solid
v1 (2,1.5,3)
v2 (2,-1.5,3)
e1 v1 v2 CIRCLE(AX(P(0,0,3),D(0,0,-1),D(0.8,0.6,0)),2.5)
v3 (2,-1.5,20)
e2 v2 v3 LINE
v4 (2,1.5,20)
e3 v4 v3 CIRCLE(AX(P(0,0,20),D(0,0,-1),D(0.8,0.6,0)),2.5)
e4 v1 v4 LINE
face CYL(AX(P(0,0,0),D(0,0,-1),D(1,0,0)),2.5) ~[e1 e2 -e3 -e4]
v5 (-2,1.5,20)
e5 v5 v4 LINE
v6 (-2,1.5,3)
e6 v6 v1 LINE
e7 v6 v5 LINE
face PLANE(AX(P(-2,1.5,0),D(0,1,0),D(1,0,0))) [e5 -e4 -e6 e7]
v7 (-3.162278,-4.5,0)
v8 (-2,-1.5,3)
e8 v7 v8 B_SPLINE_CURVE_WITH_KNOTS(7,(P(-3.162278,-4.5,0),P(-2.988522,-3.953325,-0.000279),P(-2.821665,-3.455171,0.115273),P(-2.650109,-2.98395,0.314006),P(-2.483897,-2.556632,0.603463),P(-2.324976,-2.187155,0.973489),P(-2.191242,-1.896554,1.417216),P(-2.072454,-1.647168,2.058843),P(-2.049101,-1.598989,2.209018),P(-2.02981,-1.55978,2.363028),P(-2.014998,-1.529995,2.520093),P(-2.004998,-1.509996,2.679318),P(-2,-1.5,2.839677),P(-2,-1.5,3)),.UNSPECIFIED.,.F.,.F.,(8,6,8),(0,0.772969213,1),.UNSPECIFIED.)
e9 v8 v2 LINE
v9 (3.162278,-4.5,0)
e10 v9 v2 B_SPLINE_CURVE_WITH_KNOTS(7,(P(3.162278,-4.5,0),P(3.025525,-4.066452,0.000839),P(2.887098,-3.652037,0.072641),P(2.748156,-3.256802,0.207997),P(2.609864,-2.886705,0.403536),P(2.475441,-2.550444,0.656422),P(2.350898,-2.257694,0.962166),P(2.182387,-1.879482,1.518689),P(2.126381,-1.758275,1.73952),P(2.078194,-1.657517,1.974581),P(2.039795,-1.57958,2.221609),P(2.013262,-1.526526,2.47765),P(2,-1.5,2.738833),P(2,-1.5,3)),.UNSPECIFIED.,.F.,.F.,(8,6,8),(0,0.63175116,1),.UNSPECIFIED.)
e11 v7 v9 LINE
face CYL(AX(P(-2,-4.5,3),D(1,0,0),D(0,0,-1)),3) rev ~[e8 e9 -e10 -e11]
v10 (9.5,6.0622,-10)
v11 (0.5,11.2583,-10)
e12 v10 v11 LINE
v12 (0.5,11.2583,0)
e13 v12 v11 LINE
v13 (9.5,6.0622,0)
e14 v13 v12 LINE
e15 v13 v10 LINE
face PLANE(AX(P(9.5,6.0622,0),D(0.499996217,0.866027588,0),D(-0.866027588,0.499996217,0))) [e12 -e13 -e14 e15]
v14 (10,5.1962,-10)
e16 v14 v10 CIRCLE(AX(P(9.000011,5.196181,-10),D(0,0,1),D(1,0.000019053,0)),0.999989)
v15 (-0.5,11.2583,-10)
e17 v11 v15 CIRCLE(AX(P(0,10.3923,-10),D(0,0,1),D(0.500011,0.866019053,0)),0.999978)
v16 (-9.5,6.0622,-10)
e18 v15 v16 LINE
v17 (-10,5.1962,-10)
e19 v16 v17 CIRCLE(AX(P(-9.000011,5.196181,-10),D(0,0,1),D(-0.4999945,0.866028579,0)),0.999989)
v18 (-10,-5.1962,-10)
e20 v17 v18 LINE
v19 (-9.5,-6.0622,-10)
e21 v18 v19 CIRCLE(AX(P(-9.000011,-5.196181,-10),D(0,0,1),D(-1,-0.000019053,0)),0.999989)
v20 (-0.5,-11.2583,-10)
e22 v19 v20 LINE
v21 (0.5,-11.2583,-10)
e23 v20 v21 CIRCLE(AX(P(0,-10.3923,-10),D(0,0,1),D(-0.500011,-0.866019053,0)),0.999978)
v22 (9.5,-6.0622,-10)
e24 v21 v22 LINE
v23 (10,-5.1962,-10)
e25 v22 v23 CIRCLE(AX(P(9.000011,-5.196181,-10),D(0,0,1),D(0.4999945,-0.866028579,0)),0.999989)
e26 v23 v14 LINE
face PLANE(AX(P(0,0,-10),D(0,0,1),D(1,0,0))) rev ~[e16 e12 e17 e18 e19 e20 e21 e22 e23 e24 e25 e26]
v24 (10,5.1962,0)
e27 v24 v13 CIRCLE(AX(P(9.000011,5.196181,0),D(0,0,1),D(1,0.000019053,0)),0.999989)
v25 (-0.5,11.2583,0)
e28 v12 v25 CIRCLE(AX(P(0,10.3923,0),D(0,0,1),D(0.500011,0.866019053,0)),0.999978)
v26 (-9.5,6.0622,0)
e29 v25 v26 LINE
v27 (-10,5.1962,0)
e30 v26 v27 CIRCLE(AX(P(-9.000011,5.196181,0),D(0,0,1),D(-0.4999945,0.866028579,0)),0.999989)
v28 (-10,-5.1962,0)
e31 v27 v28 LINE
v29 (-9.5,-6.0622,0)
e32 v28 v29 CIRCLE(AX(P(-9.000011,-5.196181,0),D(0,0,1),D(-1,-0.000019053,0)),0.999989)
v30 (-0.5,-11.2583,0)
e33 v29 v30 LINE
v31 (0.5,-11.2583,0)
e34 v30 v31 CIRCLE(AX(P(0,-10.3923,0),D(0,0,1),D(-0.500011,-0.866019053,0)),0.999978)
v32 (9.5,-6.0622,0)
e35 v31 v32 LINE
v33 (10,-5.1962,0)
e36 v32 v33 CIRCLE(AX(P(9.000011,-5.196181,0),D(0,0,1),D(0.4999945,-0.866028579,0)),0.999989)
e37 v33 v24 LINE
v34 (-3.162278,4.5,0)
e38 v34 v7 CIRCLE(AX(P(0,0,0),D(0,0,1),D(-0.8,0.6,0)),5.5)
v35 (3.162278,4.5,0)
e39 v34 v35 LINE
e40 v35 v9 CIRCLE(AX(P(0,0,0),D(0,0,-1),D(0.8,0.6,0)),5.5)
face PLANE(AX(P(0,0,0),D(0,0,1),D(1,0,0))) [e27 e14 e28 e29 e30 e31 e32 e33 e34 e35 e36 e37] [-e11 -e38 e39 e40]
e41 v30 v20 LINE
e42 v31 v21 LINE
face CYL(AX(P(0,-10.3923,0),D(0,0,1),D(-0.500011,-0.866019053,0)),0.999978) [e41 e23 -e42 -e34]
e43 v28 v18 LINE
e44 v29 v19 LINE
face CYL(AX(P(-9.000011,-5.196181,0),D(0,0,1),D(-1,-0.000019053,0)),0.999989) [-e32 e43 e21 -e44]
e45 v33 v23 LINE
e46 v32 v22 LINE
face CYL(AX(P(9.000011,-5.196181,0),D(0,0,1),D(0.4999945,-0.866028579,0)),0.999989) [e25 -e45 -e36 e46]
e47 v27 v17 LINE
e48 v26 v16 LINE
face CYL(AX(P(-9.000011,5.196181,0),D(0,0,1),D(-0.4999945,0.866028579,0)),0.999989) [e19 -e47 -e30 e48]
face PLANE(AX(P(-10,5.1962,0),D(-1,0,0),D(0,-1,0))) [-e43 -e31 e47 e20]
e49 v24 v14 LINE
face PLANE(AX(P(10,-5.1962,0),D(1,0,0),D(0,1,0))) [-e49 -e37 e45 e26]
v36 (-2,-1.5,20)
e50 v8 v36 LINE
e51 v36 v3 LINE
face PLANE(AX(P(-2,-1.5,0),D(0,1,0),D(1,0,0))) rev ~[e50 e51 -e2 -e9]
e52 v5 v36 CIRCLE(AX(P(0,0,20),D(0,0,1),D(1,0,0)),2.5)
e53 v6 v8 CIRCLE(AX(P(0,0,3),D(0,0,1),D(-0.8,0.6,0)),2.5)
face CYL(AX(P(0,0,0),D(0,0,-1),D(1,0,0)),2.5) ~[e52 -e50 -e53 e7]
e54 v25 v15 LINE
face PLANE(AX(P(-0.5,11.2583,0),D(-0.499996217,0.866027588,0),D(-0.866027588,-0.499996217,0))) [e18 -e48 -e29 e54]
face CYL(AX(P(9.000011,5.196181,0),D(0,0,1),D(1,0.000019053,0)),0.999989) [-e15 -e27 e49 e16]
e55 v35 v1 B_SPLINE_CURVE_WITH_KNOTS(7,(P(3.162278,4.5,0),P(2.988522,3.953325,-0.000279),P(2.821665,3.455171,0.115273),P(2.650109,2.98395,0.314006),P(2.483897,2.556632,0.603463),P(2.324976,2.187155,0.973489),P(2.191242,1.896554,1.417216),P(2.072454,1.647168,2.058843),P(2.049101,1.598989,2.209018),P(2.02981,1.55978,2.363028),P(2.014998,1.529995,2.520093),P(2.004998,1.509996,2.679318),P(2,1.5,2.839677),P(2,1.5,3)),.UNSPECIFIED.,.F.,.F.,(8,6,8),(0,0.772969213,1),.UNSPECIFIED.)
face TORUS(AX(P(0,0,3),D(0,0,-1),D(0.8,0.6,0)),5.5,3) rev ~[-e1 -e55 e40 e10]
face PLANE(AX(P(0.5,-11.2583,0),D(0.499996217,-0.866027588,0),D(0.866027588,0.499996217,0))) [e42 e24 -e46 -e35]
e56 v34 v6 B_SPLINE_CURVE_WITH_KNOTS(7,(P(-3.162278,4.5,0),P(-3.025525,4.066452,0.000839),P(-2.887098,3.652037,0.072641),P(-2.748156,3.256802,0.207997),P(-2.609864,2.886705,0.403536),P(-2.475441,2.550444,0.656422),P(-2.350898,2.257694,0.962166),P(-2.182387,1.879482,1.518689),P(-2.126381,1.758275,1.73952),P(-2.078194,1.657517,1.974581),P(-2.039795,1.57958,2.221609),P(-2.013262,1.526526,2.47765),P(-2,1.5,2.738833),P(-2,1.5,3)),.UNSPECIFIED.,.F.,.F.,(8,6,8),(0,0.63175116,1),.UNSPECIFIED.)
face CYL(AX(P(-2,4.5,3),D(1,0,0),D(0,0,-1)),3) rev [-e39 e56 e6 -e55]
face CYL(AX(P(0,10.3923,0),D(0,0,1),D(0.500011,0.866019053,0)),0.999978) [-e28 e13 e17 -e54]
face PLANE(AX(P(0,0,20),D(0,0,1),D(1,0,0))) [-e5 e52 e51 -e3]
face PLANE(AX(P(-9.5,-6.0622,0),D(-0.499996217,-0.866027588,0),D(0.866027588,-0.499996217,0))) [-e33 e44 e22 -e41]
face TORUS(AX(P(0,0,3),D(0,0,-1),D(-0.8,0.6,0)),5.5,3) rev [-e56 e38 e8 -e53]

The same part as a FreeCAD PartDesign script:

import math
import FreeCAD as App
import Part
import Sketcher


def edges_at(feature, points):
    """Names of the edges that pass closest to the given points."""
    edges = feature.Shape.Edges
    near = lambda p: min(range(len(edges)), key=lambda i: edges[i].distToShape(Part.Vertex(*p))[0])
    return sorted({f"Edge{near(p) + 1}" for p in points})

doc = App.newDocument("Part")
body = doc.addObject("PartDesign::Body", "Body")

# Sketch on XY plane
sketch1 = body.newObject("Sketcher::SketchObject", "Sketch")
sketch1.AttachmentSupport = (doc.getObject("XY_Plane"), [""])
sketch1.MapMode = "FlatFace"
sketch1.addGeometry([
    Part.ArcOfCircle(Part.Circle(App.Vector(0, 0, 0), App.Vector(0, 0, 1), 2.5), math.radians(-37), math.radians(37)),
    Part.LineSegment(App.Vector(2, 1.5, 0), App.Vector(-2, 1.5, 0)),
    Part.ArcOfCircle(Part.Circle(App.Vector(0, 0, 0), App.Vector(0, 0, 1), 2.5), math.radians(143), math.radians(217)),
    Part.LineSegment(App.Vector(-2, -1.5, 0), App.Vector(2, -1.5, 0)),
], False)
sketch1.addConstraint([
    Sketcher.Constraint("Coincident", 0, 2, 1, 1),
    Sketcher.Constraint("Coincident", 1, 2, 2, 1),
    Sketcher.Constraint("Coincident", 2, 2, 3, 1),
    Sketcher.Constraint("Coincident", 3, 2, 0, 1),
    Sketcher.Constraint("Horizontal", 1),
    Sketcher.Constraint("Horizontal", 3),
    Sketcher.Constraint("Coincident", 0, 3, -1, 1),
    Sketcher.Constraint("Coincident", 2, 3, -1, 1),
    Sketcher.Constraint("Equal", 0, 2),
    Sketcher.Constraint("Vertical", 1, 2, 2, 2),
    Sketcher.Constraint("Radius", 0, 2.5),
    Sketcher.Constraint("DistanceY", 2, 2, 1, 2, 3.0),
])
pad1 = body.newObject("PartDesign::Pad", "Pad")
pad1.Profile = sketch1
pad1.Length = 20

# Sketch on XY plane
sketch2 = body.newObject("Sketcher::SketchObject", "Sketch001")
sketch2.AttachmentSupport = (doc.getObject("XY_Plane"), [""])
sketch2.MapMode = "FlatFace"
sketch2.addGeometry([
    Part.ArcOfCircle(Part.Circle(App.Vector(9, 5.2, 0), App.Vector(0, 0, 1), 1), math.radians(0), math.radians(60)),  # 0
    Part.LineSegment(App.Vector(9.5, 6.1, 0), App.Vector(0.5, 11.3, 0)),  # 1
    Part.ArcOfCircle(Part.Circle(App.Vector(0, 10.4, 0), App.Vector(0, 0, 1), 1), math.radians(60), math.radians(120)),  # 2
    Part.LineSegment(App.Vector(-0.5, 11.3, 0), App.Vector(-9.5, 6.1, 0)),  # 3
    Part.ArcOfCircle(Part.Circle(App.Vector(-9, 5.2, 0), App.Vector(0, 0, 1), 1), math.radians(120), math.radians(180)),  # 4
    Part.LineSegment(App.Vector(-10, 5.2, 0), App.Vector(-10, -5.2, 0)),  # 5
    Part.ArcOfCircle(Part.Circle(App.Vector(-9, -5.2, 0), App.Vector(0, 0, 1), 1), math.radians(180), math.radians(240)),  # 6
    Part.LineSegment(App.Vector(-9.5, -6.1, 0), App.Vector(-0.5, -11.3, 0)),  # 7
    Part.ArcOfCircle(Part.Circle(App.Vector(0, -10.4, 0), App.Vector(0, 0, 1), 1), math.radians(-120), math.radians(-60)),  # 8
    Part.LineSegment(App.Vector(0.5, -11.3, 0), App.Vector(9.5, -6.1, 0)),  # 9
    Part.ArcOfCircle(Part.Circle(App.Vector(9, -5.2, 0), App.Vector(0, 0, 1), 1), math.radians(-60), math.radians(0)),  # 10
    Part.LineSegment(App.Vector(10, -5.2, 0), App.Vector(10, 5.2, 0)),  # 11
], False)
sketch2.addConstraint([
    Sketcher.Constraint("Tangent", 0, 2, 1, 1),
    Sketcher.Constraint("Tangent", 1, 2, 2, 1),
    Sketcher.Constraint("Tangent", 2, 2, 3, 1),
    Sketcher.Constraint("Tangent", 3, 2, 4, 1),
    Sketcher.Constraint("Tangent", 4, 2, 5, 1),
    Sketcher.Constraint("Tangent", 5, 2, 6, 1),
    Sketcher.Constraint("Tangent", 6, 2, 7, 1),
    Sketcher.Constraint("Tangent", 7, 2, 8, 1),
    Sketcher.Constraint("Tangent", 8, 2, 9, 1),
    Sketcher.Constraint("Tangent", 9, 2, 10, 1),
    Sketcher.Constraint("Tangent", 10, 2, 11, 1),
    Sketcher.Constraint("Tangent", 11, 2, 0, 1),
    Sketcher.Constraint("Vertical", 5),
    Sketcher.Constraint("Vertical", 11),
    Sketcher.Constraint("Equal", 0, 2),
    Sketcher.Constraint("Equal", 2, 4),
    Sketcher.Constraint("Equal", 4, 6),
    Sketcher.Constraint("Equal", 6, 8),
    Sketcher.Constraint("Equal", 8, 10),
    Sketcher.Constraint("Symmetric", 0, 3, 6, 3, -1, 1),
    Sketcher.Constraint("Symmetric", 2, 3, 8, 3, -1, 1),
    Sketcher.Constraint("Symmetric", 1, 2, 2, 2, -2),
    Sketcher.Constraint("Parallel", 3, 9),
    Sketcher.Constraint("Radius", 0, 1.0),
    Sketcher.Constraint("DistanceX", 4, 2, -1, 1, 10.0),
    Sketcher.Constraint("DistanceX", 2, 2, 1, 2, 1.0),
    Sketcher.Constraint("DistanceY", 5, 2, 5, 1, 10.3924),
])
pad2 = body.newObject("PartDesign::Pad", "Pad001")
pad2.Profile = sketch2
pad2.Length = 10
pad2.Reversed = True
doc.recompute()

fillet = body.newObject("PartDesign::Fillet", "Fillet")
fillet.Base = (pad2, edges_at(pad2, [
    (2.5, 0, 0),
    (0, -1.5, 0),
    (0, 1.5, 0),
    (-2.5, 0, 0),
]))
fillet.Radius = 3

doc.recompute()
